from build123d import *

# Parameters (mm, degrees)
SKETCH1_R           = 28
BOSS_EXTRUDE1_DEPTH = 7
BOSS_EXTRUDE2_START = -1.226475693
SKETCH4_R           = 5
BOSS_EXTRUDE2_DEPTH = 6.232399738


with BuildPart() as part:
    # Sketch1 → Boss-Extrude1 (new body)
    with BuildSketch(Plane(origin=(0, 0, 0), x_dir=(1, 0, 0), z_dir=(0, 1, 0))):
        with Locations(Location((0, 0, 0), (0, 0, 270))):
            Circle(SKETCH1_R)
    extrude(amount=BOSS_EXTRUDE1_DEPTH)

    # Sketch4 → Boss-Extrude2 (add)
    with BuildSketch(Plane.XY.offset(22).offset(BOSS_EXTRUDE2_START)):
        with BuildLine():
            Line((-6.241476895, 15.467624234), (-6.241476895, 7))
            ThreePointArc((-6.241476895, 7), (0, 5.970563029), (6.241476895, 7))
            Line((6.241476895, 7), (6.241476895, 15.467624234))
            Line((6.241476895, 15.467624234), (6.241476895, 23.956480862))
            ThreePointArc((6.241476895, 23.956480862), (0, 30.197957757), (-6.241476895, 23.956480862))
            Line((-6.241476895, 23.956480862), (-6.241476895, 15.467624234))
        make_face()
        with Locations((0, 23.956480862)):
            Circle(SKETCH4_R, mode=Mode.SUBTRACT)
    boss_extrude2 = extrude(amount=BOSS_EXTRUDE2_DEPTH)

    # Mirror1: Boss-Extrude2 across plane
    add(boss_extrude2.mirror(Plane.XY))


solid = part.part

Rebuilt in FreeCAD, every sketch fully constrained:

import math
import FreeCAD as App
import Part
import Sketcher

V = App.Vector
Q = App.Units.Quantity

doc = App.newDocument("Part")
body = doc.addObject("PartDesign::Body", "Body")

sketch1 = body.newObject("Sketcher::SketchObject", "Sketch")
sketch1.AttachmentSupport = (doc.getObject("XZ_Plane"), [""])
sketch1.MapMode = "FlatFace"
sketch1.addGeometry(Part.Circle(V(0, 0, 0), V(0, 0, 1), 28), False)
sketch1.addConstraint([
    Sketcher.Constraint("Coincident", 0, 3, -1, 1),
    Sketcher.Constraint("Diameter", 0, Q("56 mm")),
])
pad1 = body.newObject("PartDesign::Pad", "Pad")
pad1.Profile = sketch1
pad1.Length = 7
pad1.Reversed = True

sketch2 = body.newObject("Sketcher::SketchObject", "Sketch001")
sketch2.AttachmentSupport = (doc.getObject("XY_Plane"), [""])
sketch2.MapMode = "FlatFace"
sketch2.AttachmentOffset = App.Placement(V(0, 0, 20.773524), App.Rotation())
sketch2.addGeometry([
    Part.ArcOfCircle(Part.Circle(V(0, 25.40632, 0), V(0, 0, 1), 19.435757), math.radians(-108.731501), math.radians(-71.268499)),
    Part.LineSegment(V(6.241477, 7, 0), V(6.241477, 23.956481, 0)),
    Part.ArcOfCircle(Part.Circle(V(0, 23.956481, 0), V(0, 0, 1), 6.241477), math.radians(0), math.radians(180)),
    Part.LineSegment(V(-6.241477, 23.956481, 0), V(-6.241477, 7, 0)),
    Part.Circle(V(0, 23.956481, 0), V(0, 0, 1), 5),
], False)
sketch2.addConstraint([
    Sketcher.Constraint("Coincident", 0, 2, 1, 1),
    Sketcher.Constraint("Tangent", 1, 2, 2, 1),
    Sketcher.Constraint("Tangent", 2, 2, 3, 1),
    Sketcher.Constraint("Coincident", 3, 2, 0, 1),
    Sketcher.Constraint("Vertical", 1),
    Sketcher.Constraint("Vertical", 3),
    Sketcher.Constraint("Coincident", 4, 3, 2, 3),
    Sketcher.Constraint("Symmetric", 0, 2, 3, 2, -2),
    Sketcher.Constraint("Diameter", 4, Q("10 mm")),
    Sketcher.Constraint("DistanceY", -1, 1, 0, 2, Q("7 mm")),
    Sketcher.Constraint("Radius", 0, Q("19.435757 mm")),
    Sketcher.Constraint("Radius", 2, Q("6.241477 mm")),
    Sketcher.Constraint("DistanceY", 1, 1, 1, 2, Q("16.956481 mm")),
])
pad2 = body.newObject("PartDesign::Pad", "Pad001")
pad2.Profile = sketch2
pad2.Length = 6.2324
doc.recompute()

mirrored = body.newObject("PartDesign::Mirrored", "Mirrored")
mirrored.Originals = [pad2]
mirrored.MirrorPlane = (doc.getObject("XY_Plane"), [""])
body.Tip = mirrored

doc.recompute()
